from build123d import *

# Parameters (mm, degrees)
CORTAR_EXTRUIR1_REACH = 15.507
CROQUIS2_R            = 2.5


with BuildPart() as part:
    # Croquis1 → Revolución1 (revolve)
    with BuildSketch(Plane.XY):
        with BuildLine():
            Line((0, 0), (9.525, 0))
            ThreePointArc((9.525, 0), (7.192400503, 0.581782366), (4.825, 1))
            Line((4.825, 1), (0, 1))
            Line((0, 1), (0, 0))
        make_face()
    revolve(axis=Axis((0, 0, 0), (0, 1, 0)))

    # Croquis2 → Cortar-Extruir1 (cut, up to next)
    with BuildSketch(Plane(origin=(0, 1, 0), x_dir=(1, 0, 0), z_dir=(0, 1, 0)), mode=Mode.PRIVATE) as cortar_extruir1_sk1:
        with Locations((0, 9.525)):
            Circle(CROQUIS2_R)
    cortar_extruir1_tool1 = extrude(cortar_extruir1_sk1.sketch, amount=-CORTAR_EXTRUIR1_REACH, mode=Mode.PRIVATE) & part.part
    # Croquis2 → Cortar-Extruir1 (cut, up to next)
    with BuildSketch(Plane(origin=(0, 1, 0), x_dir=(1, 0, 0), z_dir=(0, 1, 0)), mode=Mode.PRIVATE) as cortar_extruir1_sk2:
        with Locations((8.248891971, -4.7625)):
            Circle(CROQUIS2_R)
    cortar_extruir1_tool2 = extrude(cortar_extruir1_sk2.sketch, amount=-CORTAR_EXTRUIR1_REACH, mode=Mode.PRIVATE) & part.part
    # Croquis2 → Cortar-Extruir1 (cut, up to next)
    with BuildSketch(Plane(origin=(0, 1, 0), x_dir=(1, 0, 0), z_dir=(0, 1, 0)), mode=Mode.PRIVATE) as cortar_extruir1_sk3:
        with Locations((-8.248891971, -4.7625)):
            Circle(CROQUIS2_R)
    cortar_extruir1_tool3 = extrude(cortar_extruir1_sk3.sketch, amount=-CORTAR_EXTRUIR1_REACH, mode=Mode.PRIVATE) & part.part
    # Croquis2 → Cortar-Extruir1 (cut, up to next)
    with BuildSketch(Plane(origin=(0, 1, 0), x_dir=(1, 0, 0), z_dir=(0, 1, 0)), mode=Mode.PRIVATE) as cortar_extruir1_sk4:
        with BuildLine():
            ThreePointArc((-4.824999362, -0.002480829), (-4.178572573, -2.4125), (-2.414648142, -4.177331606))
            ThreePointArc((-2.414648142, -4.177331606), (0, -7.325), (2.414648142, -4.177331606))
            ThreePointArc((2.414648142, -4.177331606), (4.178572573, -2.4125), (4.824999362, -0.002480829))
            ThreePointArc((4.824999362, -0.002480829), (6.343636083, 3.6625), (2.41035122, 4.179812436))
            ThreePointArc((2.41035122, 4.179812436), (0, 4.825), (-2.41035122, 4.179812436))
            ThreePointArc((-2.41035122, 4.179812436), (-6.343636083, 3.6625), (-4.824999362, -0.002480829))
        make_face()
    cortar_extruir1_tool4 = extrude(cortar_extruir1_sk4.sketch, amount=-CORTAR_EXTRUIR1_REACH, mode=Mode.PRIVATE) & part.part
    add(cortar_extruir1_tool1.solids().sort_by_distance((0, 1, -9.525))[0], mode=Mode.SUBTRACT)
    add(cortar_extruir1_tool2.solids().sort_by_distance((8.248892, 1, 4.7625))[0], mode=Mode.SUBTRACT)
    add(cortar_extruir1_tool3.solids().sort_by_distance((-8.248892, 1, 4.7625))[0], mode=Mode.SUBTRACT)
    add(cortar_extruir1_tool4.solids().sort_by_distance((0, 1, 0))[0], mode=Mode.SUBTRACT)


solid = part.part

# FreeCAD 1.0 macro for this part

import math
import FreeCAD as App
import Part
import Sketcher

doc = App.newDocument("Part")
body = doc.addObject("PartDesign::Body", "Body")

sketch1 = doc.addObject("Sketcher::SketchObject", "Sketch")
body.addObject(sketch1)
sketch1.AttachmentSupport = (doc.XY_Plane, [""])
sketch1.MapMode = "FlatFace"
sketch1.addGeometry(Part.LineSegment(App.Vector(0, 0, 0), App.Vector(9.525, 0, 0)), False)
sketch1.addGeometry(Part.ArcOfCircle(Part.Circle(App.Vector(0, -33.2225, 0), App.Vector(0, 0, 1), 34.560962), math.radians(74.002229), math.radians(81.974814)), False)
sketch1.addGeometry(Part.LineSegment(App.Vector(4.825, 1, 0), App.Vector(0, 1, 0)), False)
sketch1.addGeometry(Part.LineSegment(App.Vector(0, 1, 0), App.Vector(0, 0, 0)), False)
sketch1.addConstraint(Sketcher.Constraint("Coincident", 0, 2, 1, 1))
sketch1.addConstraint(Sketcher.Constraint("Coincident", 1, 2, 2, 1))
sketch1.addConstraint(Sketcher.Constraint("Coincident", 2, 2, 3, 1))
sketch1.addConstraint(Sketcher.Constraint("Coincident", 3, 2, 0, 1))
sketch1.addConstraint(Sketcher.Constraint("Horizontal", 0))
sketch1.addConstraint(Sketcher.Constraint("Horizontal", 2))
sketch1.addConstraint(Sketcher.Constraint("Vertical", 3))
sketch1.addConstraint(Sketcher.Constraint("Coincident", 3, 2, -1, 1))
sketch1.addConstraint(Sketcher.Constraint("PointOnObject", 1, 3, -2))
sketch1.addConstraint(Sketcher.Constraint("DistanceY", 3, 2, 3, 1, 1.0))
sketch1.addConstraint(Sketcher.Constraint("DistanceX", 1, 2, 0, 2, 4.7))
sketch1.addConstraint(Sketcher.Constraint("DistanceX", 0, 1, 0, 2, 9.525))
revolution = doc.addObject("PartDesign::Revolution", "Revolution")
body.addObject(revolution)
revolution.Profile = sketch1
revolution.ReferenceAxis = (sketch1, ["V_Axis"])
revolution.Angle = 360

sketch2 = doc.addObject("Sketcher::SketchObject", "Sketch001")
body.addObject(sketch2)
sketch2.AttachmentSupport = (doc.XZ_Plane, [""])
sketch2.MapMode = "FlatFace"
sketch2.AttachmentOffset = App.Placement(App.Vector(0, 0, -1), App.Rotation())
sketch2.addGeometry(Part.Circle(App.Vector(0, -9.525, 0), App.Vector(0, 0, 1), 2.5), False)
sketch2.addConstraint(Sketcher.Constraint("PointOnObject", 0, 3, -2))
sketch2.addConstraint(Sketcher.Constraint("Diameter", 0, 5.0))
sketch2.addConstraint(Sketcher.Constraint("DistanceY", 0, 3, -1, 1, 9.525))
pocket1 = doc.addObject("PartDesign::Pocket", "Pocket")
body.addObject(pocket1)
pocket1.Profile = sketch2
pocket1.Length = 1
pocket1.Reversed = True

sketch3 = doc.addObject("Sketcher::SketchObject", "Sketch002")
body.addObject(sketch3)
sketch3.AttachmentSupport = (doc.XZ_Plane, [""])
sketch3.MapMode = "FlatFace"
sketch3.AttachmentOffset = App.Placement(App.Vector(0, 0, -1), App.Rotation())
sketch3.addGeometry(Part.Circle(App.Vector(8.248892, 4.7625, 0), App.Vector(0, 0, 1), 2.5), False)
sketch3.addConstraint(Sketcher.Constraint("Diameter", 0, 5.0))
sketch3.addConstraint(Sketcher.Constraint("DistanceY", -1, 1, 0, 3, 4.7625))
sketch3.addConstraint(Sketcher.Constraint("DistanceX", -1, 1, 0, 3, 8.248892))
pocket2 = doc.addObject("PartDesign::Pocket", "Pocket001")
body.addObject(pocket2)
pocket2.Profile = sketch3
pocket2.Type = "UpToFirst"
pocket2.Reversed = True

sketch4 = doc.addObject("Sketcher::SketchObject", "Sketch003")
body.addObject(sketch4)
sketch4.AttachmentSupport = (doc.XZ_Plane, [""])
sketch4.MapMode = "FlatFace"
sketch4.AttachmentOffset = App.Placement(App.Vector(0, 0, -1), App.Rotation())
sketch4.addGeometry(Part.Circle(App.Vector(-8.248892, 4.7625, 0), App.Vector(0, 0, 1), 2.5), False)
sketch4.addConstraint(Sketcher.Constraint("Diameter", 0, 5.0))
sketch4.addConstraint(Sketcher.Constraint("DistanceY", -1, 1, 0, 3, 4.7625))
sketch4.addConstraint(Sketcher.Constraint("DistanceX", 0, 3, -1, 1, 8.248892))
pocket3 = doc.addObject("PartDesign::Pocket", "Pocket002")
body.addObject(pocket3)
pocket3.Profile = sketch4
pocket3.Type = "UpToFirst"
pocket3.Reversed = True

sketch5 = doc.addObject("Sketcher::SketchObject", "Sketch004")
body.addObject(sketch5)
sketch5.AttachmentSupport = (doc.XZ_Plane, [""])
sketch5.MapMode = "FlatFace"
sketch5.AttachmentOffset = App.Placement(App.Vector(0, 0, -1), App.Rotation())
sketch5.addGeometry(Part.ArcOfCircle(Part.Circle(App.Vector(0, 0, 0), App.Vector(0, 0, 1), 4.825), math.radians(120.029459), math.radians(179.970541)), False)
sketch5.addGeometry(Part.ArcOfCircle(Part.Circle(App.Vector(0, 4.825, 0), App.Vector(0, 0, 1), 2.5), math.radians(-15.01473), math.radians(195.01473)), False)
sketch5.addGeometry(Part.ArcOfCircle(Part.Circle(App.Vector(0, 0, 0), App.Vector(0, 0, 1), 4.825), math.radians(0.029459), math.radians(59.970541)), False)
sketch5.addGeometry(Part.ArcOfCircle(Part.Circle(App.Vector(4.178573, -2.4125, 0), App.Vector(0, 0, 1), 2.5), math.radians(-135.01473), math.radians(75.01473)), False)
sketch5.addGeometry(Part.ArcOfCircle(Part.Circle(App.Vector(0, 0, 0), App.Vector(0, 0, 1), 4.825), math.radians(-119.970541), math.radians(-60.029459)), False)
sketch5.addGeometry(Part.ArcOfCircle(Part.Circle(App.Vector(-4.178573, -2.4125, 0), App.Vector(0, 0, 1), 2.5), math.radians(104.98527), math.radians(315.01473)), False)
sketch5.addConstraint(Sketcher.Constraint("Coincident", 0, 1, 1, 2))
sketch5.addConstraint(Sketcher.Constraint("Coincident", 1, 1, 2, 2))
sketch5.addConstraint(Sketcher.Constraint("Coincident", 2, 1, 3, 2))
sketch5.addConstraint(Sketcher.Constraint("Coincident", 3, 1, 4, 2))
sketch5.addConstraint(Sketcher.Constraint("Coincident", 4, 1, 5, 2))
sketch5.addConstraint(Sketcher.Constraint("Coincident", 5, 1, 0, 2))
sketch5.addConstraint(Sketcher.Constraint("Coincident", 0, 3, -1, 1))
sketch5.addConstraint(Sketcher.Constraint("Coincident", 2, 3, -1, 1))
sketch5.addConstraint(Sketcher.Constraint("Coincident", 4, 3, -1, 1))
sketch5.addConstraint(Sketcher.Constraint("Equal", 0, 2))
sketch5.addConstraint(Sketcher.Constraint("Equal", 1, 3))
sketch5.addConstraint(Sketcher.Constraint("Equal", 2, 4))
sketch5.addConstraint(Sketcher.Constraint("Equal", 3, 5))
sketch5.addConstraint(Sketcher.Constraint("Symmetric", 3, 3, 5, 3, -2))
sketch5.addConstraint(Sketcher.Constraint("PointOnObject", 1, 3, -2))
sketch5.addConstraint(Sketcher.Constraint("Radius", 1, 2.5))
sketch5.addConstraint(Sketcher.Constraint("Radius", 0, 4.825))
sketch5.addConstraint(Sketcher.Constraint("DistanceY", -1, 1, 1, 3, 4.825))
sketch5.addConstraint(Sketcher.Constraint("DistanceY", 3, 3, -1, 1, 2.4125))
sketch5.addConstraint(Sketcher.Constraint("DistanceY", -1, 1, 2, 1, 0.002481))
pocket4 = doc.addObject("PartDesign::Pocket", "Pocket003")
body.addObject(pocket4)
pocket4.Profile = sketch5
pocket4.Type = "UpToFirst"
pocket4.Reversed = True

doc.recompute()
